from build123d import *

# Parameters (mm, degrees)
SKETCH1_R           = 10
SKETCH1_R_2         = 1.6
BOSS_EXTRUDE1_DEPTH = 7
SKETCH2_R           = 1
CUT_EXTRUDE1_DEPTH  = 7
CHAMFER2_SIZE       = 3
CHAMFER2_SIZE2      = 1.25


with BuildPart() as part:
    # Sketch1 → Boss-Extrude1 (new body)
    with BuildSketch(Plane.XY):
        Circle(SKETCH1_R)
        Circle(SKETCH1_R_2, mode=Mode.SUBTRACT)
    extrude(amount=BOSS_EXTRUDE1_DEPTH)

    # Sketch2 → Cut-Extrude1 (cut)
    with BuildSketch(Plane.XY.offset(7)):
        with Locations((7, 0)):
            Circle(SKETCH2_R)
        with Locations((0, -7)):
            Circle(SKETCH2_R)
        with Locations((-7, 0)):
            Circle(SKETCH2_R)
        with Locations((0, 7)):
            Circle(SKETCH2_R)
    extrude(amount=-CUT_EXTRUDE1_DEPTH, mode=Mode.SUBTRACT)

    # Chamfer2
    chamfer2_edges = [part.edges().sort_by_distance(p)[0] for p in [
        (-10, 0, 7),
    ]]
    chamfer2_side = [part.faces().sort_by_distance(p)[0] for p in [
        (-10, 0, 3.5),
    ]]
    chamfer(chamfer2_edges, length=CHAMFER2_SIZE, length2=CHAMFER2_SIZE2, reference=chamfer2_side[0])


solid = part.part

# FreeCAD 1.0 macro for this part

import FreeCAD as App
import Part
import Sketcher


def edges_at(feature, points):
    """Names of the edges that pass closest to the given points."""
    edges = feature.Shape.Edges
    near = lambda p: min(range(len(edges)), key=lambda i: edges[i].distToShape(Part.Vertex(*p))[0])
    return sorted({f"Edge{near(p) + 1}" for p in points})

doc = App.newDocument("Part")
body = doc.addObject("PartDesign::Body", "Body")

sketch1 = body.newObject("Sketcher::SketchObject", "Sketch")
sketch1.AttachmentSupport = (doc.getObject("XY_Plane"), [""])
sketch1.MapMode = "FlatFace"
sketch1.addGeometry([
    Part.Circle(App.Vector(0, 0, 0), App.Vector(0, 0, 1), 10),
    Part.Circle(App.Vector(0, 0, 0), App.Vector(0, 0, 1), 1.6),
], False)
sketch1.addConstraint([
    Sketcher.Constraint("Coincident", 0, 3, -1, 1),
    Sketcher.Constraint("Coincident", 1, 3, -1, 1),
    Sketcher.Constraint("Diameter", 0, 20.0),
    Sketcher.Constraint("Diameter", 1, 3.2),
])
pad1 = body.newObject("PartDesign::Pad", "Pad")
pad1.Profile = sketch1
pad1.Length = 7

sketch2 = body.newObject("Sketcher::SketchObject", "Sketch001")
sketch2.AttachmentSupport = (doc.getObject("XY_Plane"), [""])
sketch2.MapMode = "FlatFace"
sketch2.AttachmentOffset = App.Placement(App.Vector(0, 0, 7), App.Rotation())
sketch2.addGeometry([
    Part.Circle(App.Vector(7, 0, 0), App.Vector(0, 0, 1), 1),
    Part.Circle(App.Vector(0, -7, 0), App.Vector(0, 0, 1), 1),
    Part.Circle(App.Vector(-7, 0, 0), App.Vector(0, 0, 1), 1),
    Part.Circle(App.Vector(0, 7, 0), App.Vector(0, 0, 1), 1),
], False)
sketch2.addConstraint([
    Sketcher.Constraint("Equal", 0, 1),
    Sketcher.Constraint("Equal", 1, 2),
    Sketcher.Constraint("Equal", 2, 3),
    Sketcher.Constraint("Symmetric", 0, 3, 2, 3, -1, 1),
    Sketcher.Constraint("Symmetric", 1, 3, 3, 3, -1, 1),
    Sketcher.Constraint("PointOnObject", 0, 3, -1),
    Sketcher.Constraint("PointOnObject", 1, 3, -2),
    Sketcher.Constraint("Diameter", 0, 2.0),
    Sketcher.Constraint("DistanceX", -1, 1, 0, 3, 7.0),
    Sketcher.Constraint("DistanceY", 1, 3, -1, 1, 7.0),
])
pocket1 = body.newObject("PartDesign::Pocket", "Pocket")
pocket1.Profile = sketch2
pocket1.Length = 7
doc.recompute()

chamfer = body.newObject("PartDesign::Chamfer", "Chamfer")
chamfer.Base = (pocket1, edges_at(pocket1, [(-10, 0, 7)]))
chamfer.ChamferType = "Two distances"
chamfer.Size = 3
chamfer.Size2 = 1.25

doc.recompute()
